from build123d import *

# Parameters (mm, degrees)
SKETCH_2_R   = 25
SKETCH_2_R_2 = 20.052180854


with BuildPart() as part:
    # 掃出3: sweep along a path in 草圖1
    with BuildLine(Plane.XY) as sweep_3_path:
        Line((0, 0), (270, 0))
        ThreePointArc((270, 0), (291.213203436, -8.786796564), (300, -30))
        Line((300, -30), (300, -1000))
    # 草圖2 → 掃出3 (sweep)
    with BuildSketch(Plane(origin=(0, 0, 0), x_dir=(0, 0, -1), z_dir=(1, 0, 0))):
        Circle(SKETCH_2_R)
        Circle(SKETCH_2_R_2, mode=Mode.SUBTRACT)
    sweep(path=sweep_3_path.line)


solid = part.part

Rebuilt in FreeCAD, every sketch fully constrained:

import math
import FreeCAD as App
import Part
import Sketcher
from FreeCAD import Vector
Q = App.Units.Quantity

doc = App.newDocument("Part")
body = doc.addObject("PartDesign::Body", "Body")

# Sketch on YZ plane
sketch1 = doc.addObject("Sketcher::SketchObject", "Sketch")
body.addObject(sketch1)
sketch1.AttachmentSupport = (doc.YZ_Plane, [""])
sketch1.MapMode = "FlatFace"
sketch1.addGeometry([
    Part.Circle(Vector(0, 0, 0), Vector(0, 0, 1), 25),
    Part.Circle(Vector(0, 0, 0), Vector(0, 0, 1), 20),
], False)
sketch1.addConstraint([
    Sketcher.Constraint("Coincident", 0, 3, -1, 1),
    Sketcher.Constraint("Coincident", 1, 3, -1, 1),
    Sketcher.Constraint("Diameter", 0, Q("50 mm")),
    Sketcher.Constraint("Diameter", 1, Q("40.104362 mm")),
])

# Sketch on XY plane
sketch2 = doc.addObject("Sketcher::SketchObject", "Sketch001")
body.addObject(sketch2)
sketch2.AttachmentSupport = (doc.XY_Plane, [""])
sketch2.MapMode = "FlatFace"
sketch2.addGeometry([
    Part.LineSegment(Vector(0, 0, 0), Vector(270, 0, 0)),
    Part.ArcOfCircle(Part.Circle(Vector(270, -30, 0), Vector(0, 0, 1), 30), math.radians(0), math.radians(90)),
    Part.LineSegment(Vector(300, -30, 0), Vector(300, -1000, 0)),
], False)
sketch2.addConstraint([
    Sketcher.Constraint("Tangent", 0, 2, 1, 2),
    Sketcher.Constraint("Tangent", 1, 1, 2, 1),
    Sketcher.Constraint("Horizontal", 0),
    Sketcher.Constraint("Vertical", 2),
    Sketcher.Constraint("Coincident", 0, 1, -1, 1),
    Sketcher.Constraint("Radius", 1, Q("30 mm")),
    Sketcher.Constraint("DistanceX", 0, 1, 0, 2, Q("270 mm")),
    Sketcher.Constraint("DistanceY", 2, 2, 2, 1, Q("970 mm")),
])
doc.recompute()

additivepipe = doc.addObject("PartDesign::AdditivePipe", "AdditivePipe")
body.addObject(additivepipe)
additivepipe.Profile = sketch1
additivepipe.Spine = (sketch2, ["Edge1", "Edge2", "Edge3"])

doc.recompute()
